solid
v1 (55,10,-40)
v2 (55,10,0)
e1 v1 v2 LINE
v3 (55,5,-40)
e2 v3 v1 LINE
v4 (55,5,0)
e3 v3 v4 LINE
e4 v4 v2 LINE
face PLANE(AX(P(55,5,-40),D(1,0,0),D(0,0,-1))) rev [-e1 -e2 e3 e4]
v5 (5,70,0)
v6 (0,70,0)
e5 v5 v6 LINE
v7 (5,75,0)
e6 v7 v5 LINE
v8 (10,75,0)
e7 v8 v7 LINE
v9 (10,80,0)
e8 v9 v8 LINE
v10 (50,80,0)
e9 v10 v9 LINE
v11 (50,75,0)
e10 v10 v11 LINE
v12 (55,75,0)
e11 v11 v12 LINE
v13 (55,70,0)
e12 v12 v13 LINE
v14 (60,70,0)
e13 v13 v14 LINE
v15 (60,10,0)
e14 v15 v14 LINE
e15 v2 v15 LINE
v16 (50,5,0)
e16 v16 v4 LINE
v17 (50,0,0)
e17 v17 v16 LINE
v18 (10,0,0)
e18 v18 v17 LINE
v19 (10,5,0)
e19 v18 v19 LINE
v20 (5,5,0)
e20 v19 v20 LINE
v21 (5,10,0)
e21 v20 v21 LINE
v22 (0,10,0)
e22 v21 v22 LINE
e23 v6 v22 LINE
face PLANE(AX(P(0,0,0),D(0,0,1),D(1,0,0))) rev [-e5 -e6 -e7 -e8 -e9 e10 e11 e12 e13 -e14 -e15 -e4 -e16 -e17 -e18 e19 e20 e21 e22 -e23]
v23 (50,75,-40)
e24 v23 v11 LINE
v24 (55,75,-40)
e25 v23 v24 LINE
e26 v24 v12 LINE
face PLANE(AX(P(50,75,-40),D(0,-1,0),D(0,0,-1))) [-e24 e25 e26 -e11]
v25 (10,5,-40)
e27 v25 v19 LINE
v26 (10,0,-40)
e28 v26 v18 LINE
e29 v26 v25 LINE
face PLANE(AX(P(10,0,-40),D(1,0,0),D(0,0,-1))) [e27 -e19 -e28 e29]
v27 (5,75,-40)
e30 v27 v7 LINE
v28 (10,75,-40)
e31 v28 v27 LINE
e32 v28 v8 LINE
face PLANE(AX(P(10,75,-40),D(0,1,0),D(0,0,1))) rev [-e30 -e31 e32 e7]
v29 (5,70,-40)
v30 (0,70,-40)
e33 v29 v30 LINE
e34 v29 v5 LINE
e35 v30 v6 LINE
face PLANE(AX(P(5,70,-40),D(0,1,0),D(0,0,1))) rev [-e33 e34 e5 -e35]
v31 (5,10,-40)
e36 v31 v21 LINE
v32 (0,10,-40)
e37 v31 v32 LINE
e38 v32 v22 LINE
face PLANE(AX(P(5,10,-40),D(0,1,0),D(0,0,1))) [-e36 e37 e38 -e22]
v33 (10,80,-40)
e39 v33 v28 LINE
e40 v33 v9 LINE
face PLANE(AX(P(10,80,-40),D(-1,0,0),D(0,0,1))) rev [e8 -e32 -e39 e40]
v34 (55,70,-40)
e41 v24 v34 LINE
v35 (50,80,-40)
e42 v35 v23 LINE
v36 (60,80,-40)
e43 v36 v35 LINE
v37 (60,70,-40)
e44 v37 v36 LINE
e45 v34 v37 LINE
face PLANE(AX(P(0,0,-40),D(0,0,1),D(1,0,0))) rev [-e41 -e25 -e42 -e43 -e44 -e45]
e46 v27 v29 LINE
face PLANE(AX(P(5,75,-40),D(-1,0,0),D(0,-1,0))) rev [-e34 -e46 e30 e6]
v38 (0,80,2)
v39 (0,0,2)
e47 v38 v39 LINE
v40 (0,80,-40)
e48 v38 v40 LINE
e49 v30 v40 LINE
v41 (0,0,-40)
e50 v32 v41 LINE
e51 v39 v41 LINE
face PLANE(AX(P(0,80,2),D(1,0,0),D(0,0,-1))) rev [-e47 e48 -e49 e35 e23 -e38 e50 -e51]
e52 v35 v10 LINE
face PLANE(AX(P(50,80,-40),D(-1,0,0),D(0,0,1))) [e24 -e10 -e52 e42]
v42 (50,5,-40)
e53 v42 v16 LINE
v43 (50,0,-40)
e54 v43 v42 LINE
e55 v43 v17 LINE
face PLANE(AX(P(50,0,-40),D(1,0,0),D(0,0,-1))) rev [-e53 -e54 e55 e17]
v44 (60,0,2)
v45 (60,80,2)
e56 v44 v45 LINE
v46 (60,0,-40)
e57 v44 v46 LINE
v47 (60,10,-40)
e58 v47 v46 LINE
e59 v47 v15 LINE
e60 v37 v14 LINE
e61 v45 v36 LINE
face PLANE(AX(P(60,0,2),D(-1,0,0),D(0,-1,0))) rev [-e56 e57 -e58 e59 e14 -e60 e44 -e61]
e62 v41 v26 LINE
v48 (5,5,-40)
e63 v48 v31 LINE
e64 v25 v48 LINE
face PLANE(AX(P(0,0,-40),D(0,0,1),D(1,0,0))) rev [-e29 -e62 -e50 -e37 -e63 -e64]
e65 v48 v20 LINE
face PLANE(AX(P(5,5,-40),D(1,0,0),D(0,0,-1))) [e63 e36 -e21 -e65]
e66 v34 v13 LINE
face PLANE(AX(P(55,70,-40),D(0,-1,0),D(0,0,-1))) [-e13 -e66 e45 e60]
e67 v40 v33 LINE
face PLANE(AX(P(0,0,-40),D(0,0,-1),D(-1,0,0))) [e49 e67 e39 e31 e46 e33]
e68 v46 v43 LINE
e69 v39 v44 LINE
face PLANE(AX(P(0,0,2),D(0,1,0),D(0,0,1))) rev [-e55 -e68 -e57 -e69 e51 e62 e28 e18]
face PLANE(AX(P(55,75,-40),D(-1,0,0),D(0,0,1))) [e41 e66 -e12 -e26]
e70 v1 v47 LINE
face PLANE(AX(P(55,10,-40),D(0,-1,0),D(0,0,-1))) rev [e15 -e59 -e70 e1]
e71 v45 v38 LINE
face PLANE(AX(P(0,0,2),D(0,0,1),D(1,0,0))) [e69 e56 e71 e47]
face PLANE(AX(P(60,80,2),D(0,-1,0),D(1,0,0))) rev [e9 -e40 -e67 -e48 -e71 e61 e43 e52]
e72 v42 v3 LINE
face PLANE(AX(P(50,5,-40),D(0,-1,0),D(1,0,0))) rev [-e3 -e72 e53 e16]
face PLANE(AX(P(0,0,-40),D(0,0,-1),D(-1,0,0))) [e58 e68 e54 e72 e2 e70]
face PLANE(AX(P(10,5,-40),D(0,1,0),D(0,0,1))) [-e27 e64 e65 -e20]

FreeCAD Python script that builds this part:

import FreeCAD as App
import Part
import Sketcher
Q = App.Units.Quantity


def add_polygon(sketch, points):
    """Adds a closed chain of lines whose ends are joined by coincident constraints."""
    first, n = sketch.GeometryCount, len(points)
    for a, b in zip(points, points[1:] + points[:1]):
        sketch.addGeometry(Part.LineSegment(App.Vector(*a, 0), App.Vector(*b, 0)), False)
    for i in range(n):
        sketch.addConstraint(Sketcher.Constraint("Coincident", first + i, 2, first + (i + 1) % n, 1))

doc = App.newDocument("Part")
params = doc.addObject("Spreadsheet::Sheet", "Params")
for row, (alias, value) in enumerate([
    ("sketch1_width", "60 mm"),
    ("sketch1_height", "80 mm"),
    ("pad1_length", "2 mm"),
    ("sketch2_width", "10 mm"),
    ("pad2_length", "40 mm"),
], start=1):
    params.set(f"A{row}", alias)
    params.set(f"B{row}", "=" + value)
    params.setAlias(f"B{row}", alias)

body = doc.addObject("PartDesign::Body", "Body")

sketch1 = body.newObject("Sketcher::SketchObject", "Sketch")
sketch1.AttachmentSupport = (doc.getObject("XY_Plane"), [""])
sketch1.MapMode = "FlatFace"
add_polygon(sketch1, [(0, 80), (0, 0), (60, 0), (60, 80)])
sketch1.addConstraint([
    Sketcher.Constraint("Vertical", 0),
    Sketcher.Constraint("Horizontal", 1),
    Sketcher.Constraint("Vertical", 2),
    Sketcher.Constraint("Horizontal", 3),
    Sketcher.Constraint("Coincident", 0, 2, -1, 1),
    Sketcher.Constraint("DistanceX", 1, 1, 1, 2, Q("60 mm")),
    Sketcher.Constraint("DistanceY", 0, 2, 0, 1, Q("80 mm")),
])
sketch1.setExpression("Constraints[9]", "Params.sketch1_width")
sketch1.setExpression("Constraints[10]", "Params.sketch1_height")
pad1 = body.newObject("PartDesign::Pad", "Pad")
pad1.Profile = sketch1
pad1.setExpression("Length", "Params.pad1_length")

sketch2 = body.newObject("Sketcher::SketchObject", "Sketch001")
sketch2.AttachmentSupport = (doc.getObject("XY_Plane"), [""])
sketch2.MapMode = "FlatFace"
add_polygon(sketch2, [(60, 0), (50, 0), (50, 5), (55, 5), (55, 10), (60, 10)])
add_polygon(sketch2, [(10, 0), (0, 0), (0, 10), (5, 10), (5, 5), (10, 5)])
add_polygon(sketch2, [(0, 80), (10, 80), (10, 75), (5, 75), (5, 70), (0, 70)])
add_polygon(sketch2, [(50, 80), (60, 80), (60, 70), (55, 70), (55, 75), (50, 75)])
sketch2.addConstraint([
    Sketcher.Constraint("Horizontal", 0),
    Sketcher.Constraint("Vertical", 1),
    Sketcher.Constraint("Horizontal", 2),
    Sketcher.Constraint("Vertical", 3),
    Sketcher.Constraint("Horizontal", 4),
    Sketcher.Constraint("Vertical", 5),
    Sketcher.Constraint("Horizontal", 6),
    Sketcher.Constraint("Vertical", 7),
    Sketcher.Constraint("Horizontal", 8),
    Sketcher.Constraint("Vertical", 9),
    Sketcher.Constraint("Horizontal", 10),
    Sketcher.Constraint("Vertical", 11),
    Sketcher.Constraint("Horizontal", 12),
    Sketcher.Constraint("Vertical", 13),
    Sketcher.Constraint("Horizontal", 14),
    Sketcher.Constraint("Vertical", 15),
    Sketcher.Constraint("Horizontal", 16),
    Sketcher.Constraint("Vertical", 17),
    Sketcher.Constraint("Horizontal", 18),
    Sketcher.Constraint("Vertical", 19),
    Sketcher.Constraint("Horizontal", 20),
    Sketcher.Constraint("Vertical", 21),
    Sketcher.Constraint("Horizontal", 22),
    Sketcher.Constraint("Vertical", 23),
    Sketcher.Constraint("Coincident", 6, 2, -1, 1),
    Sketcher.Constraint("PointOnObject", 0, 2, -1),
    Sketcher.Constraint("PointOnObject", 16, 2, -2),
    Sketcher.Constraint("Horizontal", 4, 2, 7, 2),
    Sketcher.Constraint("Horizontal", 2, 2, 9, 2),
    Sketcher.Constraint("Horizontal", 17, 2, 18, 2),
    Sketcher.Constraint("Horizontal", 16, 2, 19, 2),
    Sketcher.Constraint("Horizontal", 14, 2, 21, 2),
    Sketcher.Constraint("Vertical", 11, 2, 12, 2),
    Sketcher.Constraint("Vertical", 9, 2, 14, 2),
    Sketcher.Constraint("Vertical", 5, 2, 18, 2),
    Sketcher.Constraint("Vertical", 3, 2, 20, 2),
    Sketcher.Constraint("Vertical", 1, 2, 22, 2),
    Sketcher.Constraint("Equal", 2, 4),
    Sketcher.Constraint("Equal", 0, 6),
    Sketcher.Constraint("Equal", 4, 8),
    Sketcher.Constraint("Equal", 22, 1),
    Sketcher.Constraint("Equal", 1, 3),
    Sketcher.Constraint("Equal", 11, 13),
    Sketcher.Constraint("Equal", 13, 15),
    Sketcher.Constraint("DistanceX", 0, 2, 0, 1, Q("10 mm")),
    Sketcher.Constraint("DistanceX", -1, 1, 0, 2, Q("50 mm")),
    Sketcher.Constraint("DistanceY", -1, 1, 12, 2, Q("80 mm")),
])
sketch2.setExpression("Constraints[68]", "Params.sketch2_width")
pad2 = body.newObject("PartDesign::Pad", "Pad001")
pad2.Profile = sketch2
pad2.setExpression("Length", "Params.pad2_length")
pad2.Reversed = True

doc.recompute()
